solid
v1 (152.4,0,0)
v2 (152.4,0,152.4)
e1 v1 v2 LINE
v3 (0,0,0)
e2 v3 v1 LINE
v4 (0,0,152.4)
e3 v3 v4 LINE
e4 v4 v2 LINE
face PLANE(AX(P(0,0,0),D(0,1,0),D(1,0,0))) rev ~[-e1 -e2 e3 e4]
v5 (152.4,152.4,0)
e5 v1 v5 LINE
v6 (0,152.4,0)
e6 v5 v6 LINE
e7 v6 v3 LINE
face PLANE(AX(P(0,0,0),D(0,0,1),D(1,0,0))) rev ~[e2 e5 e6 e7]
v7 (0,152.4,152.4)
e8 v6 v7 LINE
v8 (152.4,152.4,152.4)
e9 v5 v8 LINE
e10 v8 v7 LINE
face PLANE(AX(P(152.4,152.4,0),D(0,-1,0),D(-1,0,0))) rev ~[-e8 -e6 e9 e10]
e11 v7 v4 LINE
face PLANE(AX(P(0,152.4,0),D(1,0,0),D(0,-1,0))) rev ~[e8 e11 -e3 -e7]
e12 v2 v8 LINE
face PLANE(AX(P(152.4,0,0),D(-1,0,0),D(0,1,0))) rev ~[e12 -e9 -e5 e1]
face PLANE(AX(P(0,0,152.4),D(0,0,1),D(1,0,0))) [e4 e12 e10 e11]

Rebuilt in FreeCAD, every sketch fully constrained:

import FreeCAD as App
import Part
import Sketcher

V = App.Vector
Q = App.Units.Quantity


def add_polygon(sketch, points):
    """Adds a closed chain of lines whose ends are joined by coincident constraints."""
    first, n = sketch.GeometryCount, len(points)
    for a, b in zip(points, points[1:] + points[:1]):
        sketch.addGeometry(Part.LineSegment(App.Vector(*a, 0), App.Vector(*b, 0)), False)
    for i in range(n):
        sketch.addConstraint(Sketcher.Constraint("Coincident", first + i, 2, first + (i + 1) % n, 1))

doc = App.newDocument("Part")
body = doc.addObject("PartDesign::Body", "Body")

sketch1 = doc.addObject("Sketcher::SketchObject", "Sketch")
body.addObject(sketch1)
sketch1.AttachmentSupport = (doc.XY_Plane, [""])
sketch1.MapMode = "FlatFace"
add_polygon(sketch1, [(0, 152), (0, 0), (152, 0), (152, 152)])
sketch1.addConstraint([
    Sketcher.Constraint("Vertical", 0),
    Sketcher.Constraint("Horizontal", 1),
    Sketcher.Constraint("Vertical", 2),
    Sketcher.Constraint("Horizontal", 3),
    Sketcher.Constraint("Coincident", 0, 2, -1, 1),
    Sketcher.Constraint("Equal", 3, 0),
    Sketcher.Constraint("DistanceX", 1, 1, 1, 2, Q("6 in")),
])
pad1 = doc.addObject("PartDesign::Pad", "Pad")
body.addObject(pad1)
pad1.Profile = sketch1
pad1.Length = Q("6 in")

doc.recompute()
